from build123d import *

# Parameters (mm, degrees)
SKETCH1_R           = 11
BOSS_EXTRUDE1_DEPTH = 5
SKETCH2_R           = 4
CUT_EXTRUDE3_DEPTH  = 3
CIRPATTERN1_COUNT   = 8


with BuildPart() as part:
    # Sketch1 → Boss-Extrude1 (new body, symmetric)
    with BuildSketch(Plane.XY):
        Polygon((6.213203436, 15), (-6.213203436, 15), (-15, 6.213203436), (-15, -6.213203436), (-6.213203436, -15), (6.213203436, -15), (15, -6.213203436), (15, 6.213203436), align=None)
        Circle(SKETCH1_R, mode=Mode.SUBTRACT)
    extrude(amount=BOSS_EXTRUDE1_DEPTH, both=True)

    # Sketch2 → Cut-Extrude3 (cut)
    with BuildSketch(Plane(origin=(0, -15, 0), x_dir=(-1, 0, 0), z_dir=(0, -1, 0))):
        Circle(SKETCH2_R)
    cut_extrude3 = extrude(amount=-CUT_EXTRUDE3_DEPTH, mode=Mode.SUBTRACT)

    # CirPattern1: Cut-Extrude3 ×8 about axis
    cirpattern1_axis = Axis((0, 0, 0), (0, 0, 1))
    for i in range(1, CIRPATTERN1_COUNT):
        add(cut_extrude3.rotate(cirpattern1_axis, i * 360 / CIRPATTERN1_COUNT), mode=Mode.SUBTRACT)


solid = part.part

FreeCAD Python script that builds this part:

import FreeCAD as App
import Part
import Sketcher

V = App.Vector

doc = App.newDocument("Part")
body = doc.addObject("PartDesign::Body", "Body")

sketch1 = body.newObject("Sketcher::SketchObject", "Sketch")
sketch1.AttachmentSupport = (doc.getObject("XY_Plane"), [""])
sketch1.MapMode = "FlatFace"
sketch1.addGeometry(Part.LineSegment(V(6, 15, 0), V(-6, 15, 0)), False)
sketch1.addGeometry(Part.LineSegment(V(-6, 15, 0), V(-15, 6, 0)), False)
sketch1.addGeometry(Part.LineSegment(V(-15, 6, 0), V(-15, -6, 0)), False)
sketch1.addGeometry(Part.LineSegment(V(-15, -6, 0), V(-6, -15, 0)), False)
sketch1.addGeometry(Part.LineSegment(V(-6, -15, 0), V(6, -15, 0)), False)
sketch1.addGeometry(Part.LineSegment(V(6, -15, 0), V(15, -6, 0)), False)
sketch1.addGeometry(Part.LineSegment(V(15, -6, 0), V(15, 6, 0)), False)
sketch1.addGeometry(Part.LineSegment(V(15, 6, 0), V(6, 15, 0)), False)
sketch1.addGeometry(Part.Circle(V(0, 0, 0), V(0, 0, 1), 11), False)
sketch1.addConstraint(Sketcher.Constraint("Coincident", 0, 2, 1, 1))
sketch1.addConstraint(Sketcher.Constraint("Coincident", 1, 2, 2, 1))
sketch1.addConstraint(Sketcher.Constraint("Coincident", 2, 2, 3, 1))
sketch1.addConstraint(Sketcher.Constraint("Coincident", 3, 2, 4, 1))
sketch1.addConstraint(Sketcher.Constraint("Coincident", 4, 2, 5, 1))
sketch1.addConstraint(Sketcher.Constraint("Coincident", 5, 2, 6, 1))
sketch1.addConstraint(Sketcher.Constraint("Coincident", 6, 2, 7, 1))
sketch1.addConstraint(Sketcher.Constraint("Coincident", 7, 2, 0, 1))
sketch1.addConstraint(Sketcher.Constraint("Horizontal", 0))
sketch1.addConstraint(Sketcher.Constraint("Vertical", 2))
sketch1.addConstraint(Sketcher.Constraint("Horizontal", 4))
sketch1.addConstraint(Sketcher.Constraint("Vertical", 6))
sketch1.addConstraint(Sketcher.Constraint("Coincident", 8, 3, -1, 1))
sketch1.addConstraint(Sketcher.Constraint("Symmetric", 0, 2, 4, 2, -1, 1))
sketch1.addConstraint(Sketcher.Constraint("Symmetric", 1, 2, 5, 2, -1, 1))
sketch1.addConstraint(Sketcher.Constraint("Perpendicular", 1, 3))
sketch1.addConstraint(Sketcher.Constraint("Perpendicular", 5, 7))
sketch1.addConstraint(Sketcher.Constraint("Horizontal", 2, 2, 5, 2))
sketch1.addConstraint(Sketcher.Constraint("Horizontal", 1, 2, 6, 2))
sketch1.addConstraint(Sketcher.Constraint("Vertical", 0, 2, 3, 2))
sketch1.addConstraint(Sketcher.Constraint("Equal", 4, 2))
sketch1.addConstraint(Sketcher.Constraint("Diameter", 8, 22.0))
sketch1.addConstraint(Sketcher.Constraint("DistanceY", -1, 1, 0, 2, 15.0))
sketch1.addConstraint(Sketcher.Constraint("DistanceX", 0, 2, 0, 1, 12.426407))
pad1 = body.newObject("PartDesign::Pad", "Pad")
pad1.Profile = sketch1
pad1.Length = 10
pad1.Midplane = True

sketch2 = body.newObject("Sketcher::SketchObject", "Sketch001")
sketch2.AttachmentSupport = (doc.getObject("XZ_Plane"), [""])
sketch2.MapMode = "FlatFace"
sketch2.AttachmentOffset = App.Placement(V(0, 0, 15), App.Rotation())
sketch2.addGeometry(Part.Circle(V(0, 0, 0), V(0, 0, 1), 4), False)
sketch2.addConstraint(Sketcher.Constraint("Coincident", 0, 3, -1, 1))
sketch2.addConstraint(Sketcher.Constraint("Diameter", 0, 8.0))
pocket1 = body.newObject("PartDesign::Pocket", "Pocket")
pocket1.Profile = sketch2
pocket1.Length = 3
doc.recompute()

polarpattern = body.newObject("PartDesign::PolarPattern", "PolarPattern")
polarpattern.Originals = [pocket1]
polarpattern.Axis = (doc.getObject("Z_Axis"), [""])
polarpattern.Angle = 360
polarpattern.Occurrences = 8
body.Tip = polarpattern

doc.recompute()
